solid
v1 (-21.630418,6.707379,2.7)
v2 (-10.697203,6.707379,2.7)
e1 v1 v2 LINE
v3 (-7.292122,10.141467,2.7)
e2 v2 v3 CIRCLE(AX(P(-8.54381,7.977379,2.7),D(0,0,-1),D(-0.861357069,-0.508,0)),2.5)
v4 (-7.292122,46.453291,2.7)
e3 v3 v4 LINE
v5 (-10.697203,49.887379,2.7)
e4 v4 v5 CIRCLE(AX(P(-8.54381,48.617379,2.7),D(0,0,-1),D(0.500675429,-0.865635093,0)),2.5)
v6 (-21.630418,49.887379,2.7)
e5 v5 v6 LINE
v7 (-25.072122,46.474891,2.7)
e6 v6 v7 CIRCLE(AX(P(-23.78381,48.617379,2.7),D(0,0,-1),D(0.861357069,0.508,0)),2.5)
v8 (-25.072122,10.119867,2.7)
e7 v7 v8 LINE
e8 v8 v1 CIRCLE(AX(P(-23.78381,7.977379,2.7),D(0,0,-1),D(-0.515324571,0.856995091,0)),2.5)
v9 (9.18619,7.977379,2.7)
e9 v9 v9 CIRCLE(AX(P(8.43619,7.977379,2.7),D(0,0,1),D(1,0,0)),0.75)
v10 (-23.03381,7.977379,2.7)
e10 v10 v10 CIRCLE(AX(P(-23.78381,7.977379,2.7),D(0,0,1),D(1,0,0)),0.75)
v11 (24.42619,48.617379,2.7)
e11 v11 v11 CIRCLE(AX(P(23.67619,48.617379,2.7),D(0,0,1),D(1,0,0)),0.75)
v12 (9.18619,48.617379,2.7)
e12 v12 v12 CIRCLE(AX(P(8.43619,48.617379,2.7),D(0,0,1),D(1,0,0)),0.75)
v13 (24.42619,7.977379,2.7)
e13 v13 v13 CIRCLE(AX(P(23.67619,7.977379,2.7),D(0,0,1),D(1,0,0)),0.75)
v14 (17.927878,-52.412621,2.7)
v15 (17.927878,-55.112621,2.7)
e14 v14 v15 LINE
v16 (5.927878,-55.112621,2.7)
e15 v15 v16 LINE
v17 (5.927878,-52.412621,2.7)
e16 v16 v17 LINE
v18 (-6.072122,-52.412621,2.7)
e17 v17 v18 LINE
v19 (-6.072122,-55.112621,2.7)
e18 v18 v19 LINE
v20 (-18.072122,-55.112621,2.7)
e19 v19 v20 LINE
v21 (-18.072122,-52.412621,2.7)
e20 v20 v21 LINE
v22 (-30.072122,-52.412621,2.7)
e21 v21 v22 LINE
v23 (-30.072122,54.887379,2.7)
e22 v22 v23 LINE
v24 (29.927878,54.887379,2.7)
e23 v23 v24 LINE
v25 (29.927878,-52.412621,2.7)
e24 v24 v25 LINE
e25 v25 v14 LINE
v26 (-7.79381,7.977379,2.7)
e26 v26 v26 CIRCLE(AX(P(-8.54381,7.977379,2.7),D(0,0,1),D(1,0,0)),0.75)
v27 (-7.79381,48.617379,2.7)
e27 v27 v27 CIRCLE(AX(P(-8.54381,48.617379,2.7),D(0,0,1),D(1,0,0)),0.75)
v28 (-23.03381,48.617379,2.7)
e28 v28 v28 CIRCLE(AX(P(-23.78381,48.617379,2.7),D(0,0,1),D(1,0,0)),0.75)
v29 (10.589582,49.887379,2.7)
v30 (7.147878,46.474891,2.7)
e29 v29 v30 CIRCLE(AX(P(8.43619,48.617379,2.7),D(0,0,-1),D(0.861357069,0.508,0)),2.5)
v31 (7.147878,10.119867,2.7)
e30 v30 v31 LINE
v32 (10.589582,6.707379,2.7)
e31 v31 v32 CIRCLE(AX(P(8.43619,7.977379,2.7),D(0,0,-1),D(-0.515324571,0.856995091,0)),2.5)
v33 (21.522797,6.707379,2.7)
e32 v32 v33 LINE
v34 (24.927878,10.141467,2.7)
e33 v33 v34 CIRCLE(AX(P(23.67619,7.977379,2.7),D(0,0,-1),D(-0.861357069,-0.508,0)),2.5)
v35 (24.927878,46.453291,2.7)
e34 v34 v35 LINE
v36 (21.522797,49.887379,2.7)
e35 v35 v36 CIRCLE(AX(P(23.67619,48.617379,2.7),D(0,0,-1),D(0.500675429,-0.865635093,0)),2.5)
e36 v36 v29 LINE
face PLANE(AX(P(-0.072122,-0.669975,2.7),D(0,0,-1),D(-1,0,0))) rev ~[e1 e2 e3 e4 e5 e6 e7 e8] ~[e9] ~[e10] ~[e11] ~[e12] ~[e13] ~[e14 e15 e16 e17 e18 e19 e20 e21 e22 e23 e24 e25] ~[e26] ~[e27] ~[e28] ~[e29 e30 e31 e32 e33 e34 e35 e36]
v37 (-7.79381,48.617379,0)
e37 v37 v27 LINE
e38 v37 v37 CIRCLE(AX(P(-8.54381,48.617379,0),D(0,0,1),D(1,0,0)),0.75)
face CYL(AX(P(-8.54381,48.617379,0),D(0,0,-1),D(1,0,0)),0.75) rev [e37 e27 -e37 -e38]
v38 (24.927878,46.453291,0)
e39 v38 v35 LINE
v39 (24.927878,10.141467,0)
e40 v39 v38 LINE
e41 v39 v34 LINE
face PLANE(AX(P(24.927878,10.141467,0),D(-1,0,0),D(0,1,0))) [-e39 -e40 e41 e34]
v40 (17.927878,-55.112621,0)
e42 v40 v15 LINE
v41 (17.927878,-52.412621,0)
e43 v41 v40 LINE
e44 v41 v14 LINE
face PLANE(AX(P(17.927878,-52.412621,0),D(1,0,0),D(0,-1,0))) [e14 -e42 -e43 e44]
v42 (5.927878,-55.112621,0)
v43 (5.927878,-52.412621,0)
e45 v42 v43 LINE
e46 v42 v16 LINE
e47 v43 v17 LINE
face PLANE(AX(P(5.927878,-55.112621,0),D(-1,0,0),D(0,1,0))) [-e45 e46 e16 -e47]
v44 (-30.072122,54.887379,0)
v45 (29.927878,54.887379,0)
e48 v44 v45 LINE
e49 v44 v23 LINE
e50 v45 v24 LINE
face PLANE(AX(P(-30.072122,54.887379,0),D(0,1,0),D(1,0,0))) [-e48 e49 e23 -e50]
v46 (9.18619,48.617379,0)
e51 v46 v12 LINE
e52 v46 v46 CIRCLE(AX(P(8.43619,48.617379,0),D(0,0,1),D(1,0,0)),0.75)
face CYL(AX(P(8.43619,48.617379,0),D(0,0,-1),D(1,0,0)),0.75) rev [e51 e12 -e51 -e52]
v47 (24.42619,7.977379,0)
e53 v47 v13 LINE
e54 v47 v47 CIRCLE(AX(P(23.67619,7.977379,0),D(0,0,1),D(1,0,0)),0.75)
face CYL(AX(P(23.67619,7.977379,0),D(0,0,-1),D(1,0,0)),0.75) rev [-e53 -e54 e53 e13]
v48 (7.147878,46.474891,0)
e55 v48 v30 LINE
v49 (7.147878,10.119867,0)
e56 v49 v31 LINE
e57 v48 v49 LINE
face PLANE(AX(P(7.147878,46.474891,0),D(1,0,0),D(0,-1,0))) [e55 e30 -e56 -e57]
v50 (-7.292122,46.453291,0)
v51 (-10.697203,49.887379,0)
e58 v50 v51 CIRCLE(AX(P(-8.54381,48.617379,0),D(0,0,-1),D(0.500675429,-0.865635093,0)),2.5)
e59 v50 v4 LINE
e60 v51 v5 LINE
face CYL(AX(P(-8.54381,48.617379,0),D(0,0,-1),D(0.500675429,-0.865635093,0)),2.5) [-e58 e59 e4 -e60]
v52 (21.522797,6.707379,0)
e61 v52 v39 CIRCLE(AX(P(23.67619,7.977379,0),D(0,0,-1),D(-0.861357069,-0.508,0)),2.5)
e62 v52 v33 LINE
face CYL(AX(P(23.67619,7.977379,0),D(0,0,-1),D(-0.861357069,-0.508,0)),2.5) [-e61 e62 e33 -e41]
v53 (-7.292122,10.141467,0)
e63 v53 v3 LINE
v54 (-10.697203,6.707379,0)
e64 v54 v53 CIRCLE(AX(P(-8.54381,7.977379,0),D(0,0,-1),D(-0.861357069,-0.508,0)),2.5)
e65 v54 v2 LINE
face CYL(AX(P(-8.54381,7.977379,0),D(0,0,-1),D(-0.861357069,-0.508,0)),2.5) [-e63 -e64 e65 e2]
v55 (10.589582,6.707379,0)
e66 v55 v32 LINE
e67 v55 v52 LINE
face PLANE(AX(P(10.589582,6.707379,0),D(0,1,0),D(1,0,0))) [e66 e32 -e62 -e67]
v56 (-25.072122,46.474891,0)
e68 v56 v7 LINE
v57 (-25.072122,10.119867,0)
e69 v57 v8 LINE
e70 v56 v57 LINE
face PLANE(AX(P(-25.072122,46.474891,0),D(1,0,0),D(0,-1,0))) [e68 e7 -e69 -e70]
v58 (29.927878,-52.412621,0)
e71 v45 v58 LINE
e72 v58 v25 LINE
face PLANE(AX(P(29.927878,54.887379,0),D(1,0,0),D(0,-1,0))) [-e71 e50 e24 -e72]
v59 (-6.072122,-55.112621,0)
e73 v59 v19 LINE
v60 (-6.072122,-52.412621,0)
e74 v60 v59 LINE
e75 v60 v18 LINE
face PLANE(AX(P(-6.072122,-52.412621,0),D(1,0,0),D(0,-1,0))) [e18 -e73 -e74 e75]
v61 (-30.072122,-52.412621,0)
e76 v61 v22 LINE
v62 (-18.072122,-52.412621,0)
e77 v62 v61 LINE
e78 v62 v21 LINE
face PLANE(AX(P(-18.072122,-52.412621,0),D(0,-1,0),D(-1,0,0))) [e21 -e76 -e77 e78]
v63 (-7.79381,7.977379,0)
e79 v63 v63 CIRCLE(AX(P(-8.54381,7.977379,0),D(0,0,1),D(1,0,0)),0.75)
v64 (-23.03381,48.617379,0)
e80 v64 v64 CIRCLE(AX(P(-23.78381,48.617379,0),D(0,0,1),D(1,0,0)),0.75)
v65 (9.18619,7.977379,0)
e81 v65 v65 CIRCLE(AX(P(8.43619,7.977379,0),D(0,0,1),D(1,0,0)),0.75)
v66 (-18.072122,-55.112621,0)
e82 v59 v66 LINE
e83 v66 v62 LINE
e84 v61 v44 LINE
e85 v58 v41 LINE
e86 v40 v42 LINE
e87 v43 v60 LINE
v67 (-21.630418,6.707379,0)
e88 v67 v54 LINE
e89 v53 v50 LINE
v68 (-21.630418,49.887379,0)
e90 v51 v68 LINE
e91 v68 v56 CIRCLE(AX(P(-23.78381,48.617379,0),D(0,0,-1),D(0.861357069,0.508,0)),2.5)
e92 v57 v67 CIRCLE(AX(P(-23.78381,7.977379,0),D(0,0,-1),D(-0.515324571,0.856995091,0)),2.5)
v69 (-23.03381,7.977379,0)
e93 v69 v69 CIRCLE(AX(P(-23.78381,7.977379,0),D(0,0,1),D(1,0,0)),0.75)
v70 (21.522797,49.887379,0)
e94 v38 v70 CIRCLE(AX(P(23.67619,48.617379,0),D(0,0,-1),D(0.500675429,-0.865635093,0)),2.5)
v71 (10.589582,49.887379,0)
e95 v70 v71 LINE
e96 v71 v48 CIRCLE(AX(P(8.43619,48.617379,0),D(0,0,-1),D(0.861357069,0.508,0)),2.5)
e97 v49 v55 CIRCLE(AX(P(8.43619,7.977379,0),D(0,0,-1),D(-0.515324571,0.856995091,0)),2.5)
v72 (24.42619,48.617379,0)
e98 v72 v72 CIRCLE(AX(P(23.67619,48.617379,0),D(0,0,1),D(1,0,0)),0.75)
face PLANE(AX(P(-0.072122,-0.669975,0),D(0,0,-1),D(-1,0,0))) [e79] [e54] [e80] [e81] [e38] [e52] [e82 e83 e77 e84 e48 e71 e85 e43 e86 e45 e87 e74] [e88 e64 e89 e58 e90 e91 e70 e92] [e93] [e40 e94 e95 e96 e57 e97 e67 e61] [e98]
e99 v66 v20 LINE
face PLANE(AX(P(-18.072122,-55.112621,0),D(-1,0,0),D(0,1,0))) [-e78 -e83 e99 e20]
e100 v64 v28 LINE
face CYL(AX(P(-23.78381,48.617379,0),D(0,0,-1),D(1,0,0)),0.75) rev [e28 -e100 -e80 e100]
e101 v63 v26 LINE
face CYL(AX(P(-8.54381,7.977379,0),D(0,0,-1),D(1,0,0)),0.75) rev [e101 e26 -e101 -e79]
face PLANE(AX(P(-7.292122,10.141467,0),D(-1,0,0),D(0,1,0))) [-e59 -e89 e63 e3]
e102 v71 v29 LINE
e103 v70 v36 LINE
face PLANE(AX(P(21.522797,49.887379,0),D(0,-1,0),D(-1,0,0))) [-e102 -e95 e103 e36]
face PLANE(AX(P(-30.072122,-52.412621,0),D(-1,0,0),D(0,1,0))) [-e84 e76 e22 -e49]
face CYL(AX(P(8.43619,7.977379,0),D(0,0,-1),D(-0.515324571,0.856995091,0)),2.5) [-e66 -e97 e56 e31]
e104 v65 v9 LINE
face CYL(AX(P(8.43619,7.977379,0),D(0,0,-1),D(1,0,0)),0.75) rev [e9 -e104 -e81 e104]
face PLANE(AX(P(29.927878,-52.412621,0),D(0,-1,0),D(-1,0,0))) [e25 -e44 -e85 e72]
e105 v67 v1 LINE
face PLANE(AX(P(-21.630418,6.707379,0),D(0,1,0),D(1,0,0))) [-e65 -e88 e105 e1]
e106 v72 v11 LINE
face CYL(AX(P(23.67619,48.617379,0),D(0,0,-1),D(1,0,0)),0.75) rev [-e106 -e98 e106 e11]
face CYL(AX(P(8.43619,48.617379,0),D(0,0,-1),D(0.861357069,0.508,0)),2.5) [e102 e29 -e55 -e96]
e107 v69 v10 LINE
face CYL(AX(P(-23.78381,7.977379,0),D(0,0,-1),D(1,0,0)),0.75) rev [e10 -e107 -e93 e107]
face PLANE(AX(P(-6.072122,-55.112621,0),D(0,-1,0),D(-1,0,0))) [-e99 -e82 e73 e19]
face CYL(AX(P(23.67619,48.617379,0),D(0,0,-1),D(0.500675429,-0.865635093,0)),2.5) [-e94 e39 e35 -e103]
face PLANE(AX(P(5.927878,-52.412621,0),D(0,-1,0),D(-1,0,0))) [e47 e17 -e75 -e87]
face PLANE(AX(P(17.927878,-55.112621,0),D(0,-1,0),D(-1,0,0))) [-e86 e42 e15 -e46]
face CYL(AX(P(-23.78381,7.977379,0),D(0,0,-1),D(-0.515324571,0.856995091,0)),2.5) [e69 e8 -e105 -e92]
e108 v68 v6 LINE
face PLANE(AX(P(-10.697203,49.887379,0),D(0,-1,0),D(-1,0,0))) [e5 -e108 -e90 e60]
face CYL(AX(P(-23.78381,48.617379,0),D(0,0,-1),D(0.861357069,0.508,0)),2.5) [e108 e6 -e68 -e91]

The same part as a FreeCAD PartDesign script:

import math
import FreeCAD as App
import Part
import Sketcher

V = App.Vector
Q = App.Units.Quantity

doc = App.newDocument("Part")
body = doc.addObject("PartDesign::Body", "Body")

sketch1 = doc.addObject("Sketcher::SketchObject", "Sketch")
body.addObject(sketch1)
sketch1.AttachmentSupport = (doc.XY_Plane, [""])
sketch1.MapMode = "FlatFace"
sketch1.addGeometry(Part.LineSegment(V(-30.1, 54.9, 0), V(-30.1, -52.4, 0)), False)
sketch1.addGeometry(Part.LineSegment(V(-30.1, -52.4, 0), V(-18.1, -52.4, 0)), False)
sketch1.addGeometry(Part.LineSegment(V(-18.1, -52.4, 0), V(-18.1, -55.1, 0)), False)
sketch1.addGeometry(Part.LineSegment(V(-18.1, -55.1, 0), V(-6.1, -55.1, 0)), False)
sketch1.addGeometry(Part.LineSegment(V(-6.1, -55.1, 0), V(-6.1, -52.4, 0)), False)
sketch1.addGeometry(Part.LineSegment(V(-6.1, -52.4, 0), V(5.9, -52.4, 0)), False)
sketch1.addGeometry(Part.LineSegment(V(5.9, -52.4, 0), V(5.9, -55.1, 0)), False)
sketch1.addGeometry(Part.LineSegment(V(5.9, -55.1, 0), V(17.9, -55.1, 0)), False)
sketch1.addGeometry(Part.LineSegment(V(17.9, -55.1, 0), V(17.9, -52.4, 0)), False)
sketch1.addGeometry(Part.LineSegment(V(17.9, -52.4, 0), V(29.9, -52.4, 0)), False)
sketch1.addGeometry(Part.LineSegment(V(29.9, -52.4, 0), V(29.9, 54.9, 0)), False)
sketch1.addGeometry(Part.LineSegment(V(29.9, 54.9, 0), V(-30.1, 54.9, 0)), False)
sketch1.addGeometry(Part.Circle(V(23.7, 8, 0), V(0, 0, 1), 0.8), False)
sketch1.addGeometry(Part.Circle(V(8.4, 8, 0), V(0, 0, 1), 0.8), False)
sketch1.addGeometry(Part.Circle(V(-8.5, 8, 0), V(0, 0, 1), 0.8), False)
sketch1.addGeometry(Part.Circle(V(-23.8, 8, 0), V(0, 0, 1), 0.8), False)
sketch1.addGeometry(Part.ArcOfCircle(Part.Circle(V(23.7, 48.6, 0), V(0, 0, 1), 2.5), math.radians(149), math.radians(300)), False)
sketch1.addGeometry(Part.LineSegment(V(24.9, 46.5, 0), V(24.9, 10.1, 0)), False)
sketch1.addGeometry(Part.ArcOfCircle(Part.Circle(V(23.7, 8, 0), V(0, 0, 1), 2.5), math.radians(60), math.radians(211)), False)
sketch1.addGeometry(Part.LineSegment(V(21.5, 6.7, 0), V(10.6, 6.7, 0)), False)
sketch1.addGeometry(Part.ArcOfCircle(Part.Circle(V(8.4, 8, 0), V(0, 0, 1), 2.5), math.radians(-31), math.radians(121)), False)
sketch1.addGeometry(Part.LineSegment(V(7.1, 10.1, 0), V(7.1, 46.5, 0)), False)
sketch1.addGeometry(Part.ArcOfCircle(Part.Circle(V(8.4, 48.6, 0), V(0, 0, 1), 2.5), math.radians(-121), math.radians(31)), False)
sketch1.addGeometry(Part.LineSegment(V(10.6, 49.9, 0), V(21.5, 49.9, 0)), False)
sketch1.addGeometry(Part.Circle(V(23.7, 48.6, 0), V(0, 0, 1), 0.8), False)
sketch1.addGeometry(Part.Circle(V(8.4, 48.6, 0), V(0, 0, 1), 0.8), False)
sketch1.addGeometry(Part.ArcOfCircle(Part.Circle(V(-8.5, 48.6, 0), V(0, 0, 1), 2.5), math.radians(149), math.radians(300)), False)
sketch1.addGeometry(Part.LineSegment(V(-7.3, 46.5, 0), V(-7.3, 10.1, 0)), False)
sketch1.addGeometry(Part.ArcOfCircle(Part.Circle(V(-8.5, 8, 0), V(0, 0, 1), 2.5), math.radians(60), math.radians(211)), False)
sketch1.addGeometry(Part.LineSegment(V(-10.7, 6.7, 0), V(-21.6, 6.7, 0)), False)
sketch1.addGeometry(Part.ArcOfCircle(Part.Circle(V(-23.8, 8, 0), V(0, 0, 1), 2.5), math.radians(-31), math.radians(121)), False)
sketch1.addGeometry(Part.LineSegment(V(-25.1, 10.1, 0), V(-25.1, 46.5, 0)), False)
sketch1.addGeometry(Part.ArcOfCircle(Part.Circle(V(-23.8, 48.6, 0), V(0, 0, 1), 2.5), math.radians(-121), math.radians(31)), False)
sketch1.addGeometry(Part.LineSegment(V(-21.6, 49.9, 0), V(-10.7, 49.9, 0)), False)
sketch1.addGeometry(Part.Circle(V(-8.5, 48.6, 0), V(0, 0, 1), 0.8), False)
sketch1.addGeometry(Part.Circle(V(-23.8, 48.6, 0), V(0, 0, 1), 0.8), False)
sketch1.addConstraint(Sketcher.Constraint("Coincident", 0, 2, 1, 1))
sketch1.addConstraint(Sketcher.Constraint("Coincident", 1, 2, 2, 1))
sketch1.addConstraint(Sketcher.Constraint("Coincident", 2, 2, 3, 1))
sketch1.addConstraint(Sketcher.Constraint("Coincident", 3, 2, 4, 1))
sketch1.addConstraint(Sketcher.Constraint("Coincident", 4, 2, 5, 1))
sketch1.addConstraint(Sketcher.Constraint("Coincident", 5, 2, 6, 1))
sketch1.addConstraint(Sketcher.Constraint("Coincident", 6, 2, 7, 1))
sketch1.addConstraint(Sketcher.Constraint("Coincident", 7, 2, 8, 1))
sketch1.addConstraint(Sketcher.Constraint("Coincident", 8, 2, 9, 1))
sketch1.addConstraint(Sketcher.Constraint("Coincident", 9, 2, 10, 1))
sketch1.addConstraint(Sketcher.Constraint("Coincident", 10, 2, 11, 1))
sketch1.addConstraint(Sketcher.Constraint("Coincident", 11, 2, 0, 1))
sketch1.addConstraint(Sketcher.Constraint("Coincident", 16, 2, 17, 1))
sketch1.addConstraint(Sketcher.Constraint("Coincident", 17, 2, 18, 1))
sketch1.addConstraint(Sketcher.Constraint("Coincident", 18, 2, 19, 1))
sketch1.addConstraint(Sketcher.Constraint("Coincident", 19, 2, 20, 1))
sketch1.addConstraint(Sketcher.Constraint("Coincident", 20, 2, 21, 1))
sketch1.addConstraint(Sketcher.Constraint("Coincident", 21, 2, 22, 1))
sketch1.addConstraint(Sketcher.Constraint("Coincident", 22, 2, 23, 1))
sketch1.addConstraint(Sketcher.Constraint("Coincident", 23, 2, 16, 1))
sketch1.addConstraint(Sketcher.Constraint("Coincident", 26, 2, 27, 1))
sketch1.addConstraint(Sketcher.Constraint("Coincident", 27, 2, 28, 1))
sketch1.addConstraint(Sketcher.Constraint("Coincident", 28, 2, 29, 1))
sketch1.addConstraint(Sketcher.Constraint("Coincident", 29, 2, 30, 1))
sketch1.addConstraint(Sketcher.Constraint("Coincident", 30, 2, 31, 1))
sketch1.addConstraint(Sketcher.Constraint("Coincident", 31, 2, 32, 1))
sketch1.addConstraint(Sketcher.Constraint("Coincident", 32, 2, 33, 1))
sketch1.addConstraint(Sketcher.Constraint("Coincident", 33, 2, 26, 1))
sketch1.addConstraint(Sketcher.Constraint("Vertical", 0))
sketch1.addConstraint(Sketcher.Constraint("Horizontal", 1))
sketch1.addConstraint(Sketcher.Constraint("Vertical", 2))
sketch1.addConstraint(Sketcher.Constraint("Horizontal", 3))
sketch1.addConstraint(Sketcher.Constraint("Vertical", 4))
sketch1.addConstraint(Sketcher.Constraint("Horizontal", 5))
sketch1.addConstraint(Sketcher.Constraint("Vertical", 6))
sketch1.addConstraint(Sketcher.Constraint("Horizontal", 7))
sketch1.addConstraint(Sketcher.Constraint("Vertical", 8))
sketch1.addConstraint(Sketcher.Constraint("Horizontal", 9))
sketch1.addConstraint(Sketcher.Constraint("Vertical", 10))
sketch1.addConstraint(Sketcher.Constraint("Horizontal", 11))
sketch1.addConstraint(Sketcher.Constraint("Vertical", 17))
sketch1.addConstraint(Sketcher.Constraint("Horizontal", 19))
sketch1.addConstraint(Sketcher.Constraint("Vertical", 21))
sketch1.addConstraint(Sketcher.Constraint("Horizontal", 23))
sketch1.addConstraint(Sketcher.Constraint("Vertical", 27))
sketch1.addConstraint(Sketcher.Constraint("Horizontal", 29))
sketch1.addConstraint(Sketcher.Constraint("Vertical", 31))
sketch1.addConstraint(Sketcher.Constraint("Horizontal", 33))
sketch1.addConstraint(Sketcher.Constraint("Coincident", 18, 3, 12, 3))
sketch1.addConstraint(Sketcher.Constraint("Coincident", 20, 3, 13, 3))
sketch1.addConstraint(Sketcher.Constraint("Coincident", 24, 3, 16, 3))
sketch1.addConstraint(Sketcher.Constraint("Coincident", 25, 3, 22, 3))
sketch1.addConstraint(Sketcher.Constraint("Coincident", 28, 3, 14, 3))
sketch1.addConstraint(Sketcher.Constraint("Coincident", 30, 3, 15, 3))
sketch1.addConstraint(Sketcher.Constraint("Coincident", 34, 3, 26, 3))
sketch1.addConstraint(Sketcher.Constraint("Coincident", 35, 3, 32, 3))
sketch1.addConstraint(Sketcher.Constraint("Equal", 12, 13))
sketch1.addConstraint(Sketcher.Constraint("Equal", 13, 14))
sketch1.addConstraint(Sketcher.Constraint("Equal", 14, 15))
sketch1.addConstraint(Sketcher.Constraint("Equal", 16, 18))
sketch1.addConstraint(Sketcher.Constraint("Equal", 18, 20))
sketch1.addConstraint(Sketcher.Constraint("Equal", 20, 22))
sketch1.addConstraint(Sketcher.Constraint("Equal", 15, 24))
sketch1.addConstraint(Sketcher.Constraint("Equal", 24, 25))
sketch1.addConstraint(Sketcher.Constraint("Equal", 22, 26))
sketch1.addConstraint(Sketcher.Constraint("Equal", 26, 28))
sketch1.addConstraint(Sketcher.Constraint("Equal", 28, 30))
sketch1.addConstraint(Sketcher.Constraint("Equal", 30, 32))
sketch1.addConstraint(Sketcher.Constraint("Equal", 25, 34))
sketch1.addConstraint(Sketcher.Constraint("Equal", 34, 35))
sketch1.addConstraint(Sketcher.Constraint("Horizontal", 12, 3, 13, 3))
sketch1.addConstraint(Sketcher.Constraint("Horizontal", 13, 3, 14, 3))
sketch1.addConstraint(Sketcher.Constraint("Horizontal", 14, 3, 15, 3))
sketch1.addConstraint(Sketcher.Constraint("Horizontal", 16, 3, 22, 3))
sketch1.addConstraint(Sketcher.Constraint("Horizontal", 25, 3, 26, 3))
sketch1.addConstraint(Sketcher.Constraint("Horizontal", 26, 3, 32, 3))
sketch1.addConstraint(Sketcher.Constraint("Horizontal", 1, 2, 4, 2))
sketch1.addConstraint(Sketcher.Constraint("Horizontal", 3, 2, 6, 2))
sketch1.addConstraint(Sketcher.Constraint("Horizontal", 5, 2, 8, 2))
sketch1.addConstraint(Sketcher.Constraint("Horizontal", 16, 2, 26, 2))
sketch1.addConstraint(Sketcher.Constraint("Horizontal", 17, 2, 27, 2))
sketch1.addConstraint(Sketcher.Constraint("Horizontal", 19, 2, 28, 2))
sketch1.addConstraint(Sketcher.Constraint("Horizontal", 20, 2, 30, 2))
sketch1.addConstraint(Sketcher.Constraint("Horizontal", 21, 2, 31, 2))
sketch1.addConstraint(Sketcher.Constraint("Horizontal", 23, 2, 32, 2))
sketch1.addConstraint(Sketcher.Constraint("Vertical", 12, 3, 16, 3))
sketch1.addConstraint(Sketcher.Constraint("Vertical", 20, 3, 22, 3))
sketch1.addConstraint(Sketcher.Constraint("Vertical", 19, 2, 22, 2))
sketch1.addConstraint(Sketcher.Constraint("Equal", 1, 3))
sketch1.addConstraint(Sketcher.Constraint("Equal", 3, 5))
sketch1.addConstraint(Sketcher.Constraint("Equal", 5, 7))
sketch1.addConstraint(Sketcher.Constraint("Equal", 7, 9))
sketch1.addConstraint(Sketcher.Constraint("Equal", 23, 29))
sketch1.addConstraint(Sketcher.Constraint("Diameter", 12, Q("1.5 mm")))
sketch1.addConstraint(Sketcher.Constraint("Radius", 16, Q("2.5 mm")))
sketch1.addConstraint(Sketcher.Constraint("DistanceX", 1, 1, 1, 2, Q("12 mm")))
sketch1.addConstraint(Sketcher.Constraint("DistanceY", 0, 2, 0, 1, Q("107.3 mm")))
sketch1.addConstraint(Sketcher.Constraint("DistanceY", 2, 2, 2, 1, Q("2.7 mm")))
sketch1.addConstraint(Sketcher.Constraint("DistanceX", 16, 2, 10, 2, Q("5 mm")))
sketch1.addConstraint(Sketcher.Constraint("DistanceY", 23, 2, 10, 2, Q("5 mm")))
sketch1.addConstraint(Sketcher.Constraint("DistanceX", 11, 2, 31, 2, Q("5 mm")))
sketch1.addConstraint(Sketcher.Constraint("DistanceX", 13, 3, 12, 3, Q("15.24 mm")))
sketch1.addConstraint(Sketcher.Constraint("DistanceX", 14, 3, 13, 3, Q("16.98 mm")))
sketch1.addConstraint(Sketcher.Constraint("DistanceY", 12, 3, 16, 3, Q("40.64 mm")))
sketch1.addConstraint(Sketcher.Constraint("DistanceY", 0, 2, 15, 3, Q("60.39 mm")))
sketch1.addConstraint(Sketcher.Constraint("DistanceY", 26, 2, 21, 2, Q("0.0216 mm")))
sketch1.addConstraint(Sketcher.Constraint("DistanceX", -1, 1, 12, 3, Q("23.67619 mm")))
sketch1.addConstraint(Sketcher.Constraint("DistanceY", -1, 1, 12, 3, Q("7.977379 mm")))
pad1 = doc.addObject("PartDesign::Pad", "Pad")
body.addObject(pad1)
pad1.Profile = sketch1
pad1.Length = 2.7

doc.recompute()
